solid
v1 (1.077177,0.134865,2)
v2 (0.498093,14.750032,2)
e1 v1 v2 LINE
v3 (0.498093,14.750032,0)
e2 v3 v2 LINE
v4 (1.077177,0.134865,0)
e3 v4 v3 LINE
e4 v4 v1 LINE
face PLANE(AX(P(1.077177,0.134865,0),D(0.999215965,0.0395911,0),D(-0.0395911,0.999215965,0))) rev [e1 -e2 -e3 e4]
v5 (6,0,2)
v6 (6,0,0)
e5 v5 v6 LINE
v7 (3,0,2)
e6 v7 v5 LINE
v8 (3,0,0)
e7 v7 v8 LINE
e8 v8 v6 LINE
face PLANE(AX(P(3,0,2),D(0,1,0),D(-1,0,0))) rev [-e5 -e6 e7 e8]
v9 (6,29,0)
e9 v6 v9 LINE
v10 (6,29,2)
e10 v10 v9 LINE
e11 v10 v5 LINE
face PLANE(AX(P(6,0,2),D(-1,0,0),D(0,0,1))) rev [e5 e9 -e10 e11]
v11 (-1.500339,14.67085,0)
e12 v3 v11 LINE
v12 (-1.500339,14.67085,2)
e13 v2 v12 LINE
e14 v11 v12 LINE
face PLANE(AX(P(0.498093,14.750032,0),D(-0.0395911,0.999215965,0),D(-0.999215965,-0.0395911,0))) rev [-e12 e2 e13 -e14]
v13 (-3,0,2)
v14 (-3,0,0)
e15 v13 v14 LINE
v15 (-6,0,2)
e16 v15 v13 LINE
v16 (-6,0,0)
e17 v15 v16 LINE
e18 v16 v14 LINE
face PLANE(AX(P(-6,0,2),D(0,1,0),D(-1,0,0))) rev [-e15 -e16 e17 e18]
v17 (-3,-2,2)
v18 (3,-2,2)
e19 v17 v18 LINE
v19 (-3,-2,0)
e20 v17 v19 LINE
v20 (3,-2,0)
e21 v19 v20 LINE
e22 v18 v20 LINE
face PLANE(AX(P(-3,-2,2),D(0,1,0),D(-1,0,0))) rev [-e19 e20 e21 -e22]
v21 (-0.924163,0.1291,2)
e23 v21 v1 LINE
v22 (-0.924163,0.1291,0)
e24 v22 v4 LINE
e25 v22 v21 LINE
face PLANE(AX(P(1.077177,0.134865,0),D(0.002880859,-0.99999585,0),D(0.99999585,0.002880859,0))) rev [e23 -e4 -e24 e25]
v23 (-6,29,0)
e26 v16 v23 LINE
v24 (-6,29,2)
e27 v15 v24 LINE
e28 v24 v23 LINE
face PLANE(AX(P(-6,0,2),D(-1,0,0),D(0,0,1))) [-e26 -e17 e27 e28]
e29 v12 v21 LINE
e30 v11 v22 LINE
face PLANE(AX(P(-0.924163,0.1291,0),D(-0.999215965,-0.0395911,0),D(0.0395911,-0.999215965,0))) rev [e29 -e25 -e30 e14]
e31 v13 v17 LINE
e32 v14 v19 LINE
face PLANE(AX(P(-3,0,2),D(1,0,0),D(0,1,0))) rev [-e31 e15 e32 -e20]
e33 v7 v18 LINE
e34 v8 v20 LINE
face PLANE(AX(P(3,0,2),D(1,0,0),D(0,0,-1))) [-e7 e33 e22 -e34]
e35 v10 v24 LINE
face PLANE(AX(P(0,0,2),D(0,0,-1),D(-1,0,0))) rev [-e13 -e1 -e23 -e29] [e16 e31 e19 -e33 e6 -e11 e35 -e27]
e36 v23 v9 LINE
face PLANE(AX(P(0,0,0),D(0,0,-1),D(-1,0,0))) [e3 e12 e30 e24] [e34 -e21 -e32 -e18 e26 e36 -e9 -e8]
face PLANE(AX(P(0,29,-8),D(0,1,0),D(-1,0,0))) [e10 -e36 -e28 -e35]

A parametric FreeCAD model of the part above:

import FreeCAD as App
import Part
import Sketcher

V = App.Vector


def add_polygon(sketch, points):
    """Adds a closed chain of lines whose ends are joined by coincident constraints."""
    first, n = sketch.GeometryCount, len(points)
    for a, b in zip(points, points[1:] + points[:1]):
        sketch.addGeometry(Part.LineSegment(App.Vector(*a, 0), App.Vector(*b, 0)), False)
    for i in range(n):
        sketch.addConstraint(Sketcher.Constraint("Coincident", first + i, 2, first + (i + 1) % n, 1))

doc = App.newDocument("Part")
params = doc.addObject("Spreadsheet::Sheet", "Params")
for row, (alias, value) in enumerate([
    ("sketch1_width", "3 mm"),
    ("sketch1_width2", "6 mm"),
    ("sketch1_height", "2 mm"),
    ("pad1_length", "2 mm"),
    ("pocket1_length", "10 mm"),
    ("sketch3_length", "2 mm"),
    ("pocket2_length", "2 mm"),
], start=1):
    params.set(f"A{row}", alias)
    params.set(f"B{row}", "=" + value)
    params.setAlias(f"B{row}", alias)

body = doc.addObject("PartDesign::Body", "Body")

# Sketch on XY plane
sketch1 = body.newObject("Sketcher::SketchObject", "Sketch")
sketch1.AttachmentSupport = (doc.getObject("XY_Plane"), [""])
sketch1.MapMode = "FlatFace"
add_polygon(sketch1, [(-6, 30.1), (-6, 0), (-3, 0), (-3, -2), (3, -2), (3, 0), (6, 0), (6, 30.1)])  # lines 0-7
sketch1.addConstraint(Sketcher.Constraint("Vertical", 0))
sketch1.addConstraint(Sketcher.Constraint("Horizontal", 1))
sketch1.addConstraint(Sketcher.Constraint("Vertical", 2))
sketch1.addConstraint(Sketcher.Constraint("Horizontal", 3))
sketch1.addConstraint(Sketcher.Constraint("Vertical", 4))
sketch1.addConstraint(Sketcher.Constraint("Horizontal", 5))
sketch1.addConstraint(Sketcher.Constraint("Vertical", 6))
sketch1.addConstraint(Sketcher.Constraint("Horizontal", 7))
sketch1.addConstraint(Sketcher.Constraint("Symmetric", 1, 2, 4, 2, -1, 1))
sketch1.addConstraint(Sketcher.Constraint("Symmetric", 0, 2, 5, 2, -2))
sketch1.addConstraint(Sketcher.Constraint("DistanceX", 1, 1, 1, 2, 3.0))
sketch1.addConstraint(Sketcher.Constraint("DistanceX", 3, 1, 3, 2, 6.0))
sketch1.addConstraint(Sketcher.Constraint("DistanceY", 2, 2, 2, 1, 2.0))
sketch1.addConstraint(Sketcher.Constraint("DistanceY", 0, 2, 0, 1, 30.078774))
sketch1.setExpression("Constraints[18]", "Params.sketch1_width")
sketch1.setExpression("Constraints[19]", "Params.sketch1_width2")
sketch1.setExpression("Constraints[20]", "Params.sketch1_height")
pad1 = body.newObject("PartDesign::Pad", "Pad")
pad1.Profile = sketch1
pad1.setExpression("Length", "Params.pad1_length")

# Sketch on XY plane
sketch2 = body.newObject("Sketcher::SketchObject", "Sketch001")
sketch2.AttachmentSupport = (doc.getObject("XY_Plane"), [""])
sketch2.MapMode = "FlatFace"
sketch2.AttachmentOffset = App.Placement(V(0, 0, 2), App.Rotation())
add_polygon(sketch2, [(10, 29), (10, 34), (-10, 34), (-10, 29)])  # lines 0-3
sketch2.addConstraint(Sketcher.Constraint("Vertical", 0))
sketch2.addConstraint(Sketcher.Constraint("Horizontal", 1))
sketch2.addConstraint(Sketcher.Constraint("Vertical", 2))
sketch2.addConstraint(Sketcher.Constraint("Horizontal", 3))
sketch2.addConstraint(Sketcher.Constraint("DistanceY", -1, 1, 2, 2, 29.0))
sketch2.addConstraint(Sketcher.Constraint("DistanceX", 1, 2, -1, 1, 9.585001))
sketch2.addConstraint(Sketcher.Constraint("DistanceX", 1, 2, 1, 1, 19.88388))
sketch2.addConstraint(Sketcher.Constraint("DistanceY", 0, 1, 0, 2, 5.143483))
pocket1 = body.newObject("PartDesign::Pocket", "Pocket")
pocket1.Profile = sketch2
pocket1.setExpression("Length", "Params.pocket1_length")

# Sketch on XY plane
sketch3 = body.newObject("Sketcher::SketchObject", "Sketch002")
sketch3.AttachmentSupport = (doc.getObject("XY_Plane"), [""])
sketch3.MapMode = "FlatFace"
sketch3.AttachmentOffset = App.Placement(V(0, 0, 2), App.Rotation())
add_polygon(sketch3, [(-0.92, 0.13), (1.08, 0.13), (0.5, 14.75), (-1.5, 14.67), (-1.49, 14.36)])  # lines 0-4
sketch3.addConstraint(Sketcher.Constraint("Perpendicular", 1, 2))
sketch3.addConstraint(Sketcher.Constraint("Perpendicular", 2, 3))
sketch3.addConstraint(Sketcher.Constraint("Parallel", 3, 4))
sketch3.addConstraint(Sketcher.Constraint("Distance", 2, 2.0))
sketch3.addConstraint(Sketcher.Constraint("DistanceX", 3, 2, -1, 1, 1.4882))
sketch3.addConstraint(Sketcher.Constraint("DistanceY", -1, 1, 4, 2, 0.1291))
sketch3.addConstraint(Sketcher.Constraint("Distance", 0, 2.001349))
sketch3.addConstraint(Sketcher.Constraint("DistanceX", 2, 2, -1, 1, 1.500339))
sketch3.addConstraint(Sketcher.Constraint("DistanceY", -1, 1, 2, 2, 14.67085))
sketch3.addConstraint(Sketcher.Constraint("DistanceY", 0, 2, 3, 2, 14.229609))
sketch3.setExpression("Constraints[8]", "Params.sketch3_length")
pocket2 = body.newObject("PartDesign::Pocket", "Pocket001")
pocket2.Profile = sketch3
pocket2.setExpression("Length", "Params.pocket2_length")

doc.recompute()
